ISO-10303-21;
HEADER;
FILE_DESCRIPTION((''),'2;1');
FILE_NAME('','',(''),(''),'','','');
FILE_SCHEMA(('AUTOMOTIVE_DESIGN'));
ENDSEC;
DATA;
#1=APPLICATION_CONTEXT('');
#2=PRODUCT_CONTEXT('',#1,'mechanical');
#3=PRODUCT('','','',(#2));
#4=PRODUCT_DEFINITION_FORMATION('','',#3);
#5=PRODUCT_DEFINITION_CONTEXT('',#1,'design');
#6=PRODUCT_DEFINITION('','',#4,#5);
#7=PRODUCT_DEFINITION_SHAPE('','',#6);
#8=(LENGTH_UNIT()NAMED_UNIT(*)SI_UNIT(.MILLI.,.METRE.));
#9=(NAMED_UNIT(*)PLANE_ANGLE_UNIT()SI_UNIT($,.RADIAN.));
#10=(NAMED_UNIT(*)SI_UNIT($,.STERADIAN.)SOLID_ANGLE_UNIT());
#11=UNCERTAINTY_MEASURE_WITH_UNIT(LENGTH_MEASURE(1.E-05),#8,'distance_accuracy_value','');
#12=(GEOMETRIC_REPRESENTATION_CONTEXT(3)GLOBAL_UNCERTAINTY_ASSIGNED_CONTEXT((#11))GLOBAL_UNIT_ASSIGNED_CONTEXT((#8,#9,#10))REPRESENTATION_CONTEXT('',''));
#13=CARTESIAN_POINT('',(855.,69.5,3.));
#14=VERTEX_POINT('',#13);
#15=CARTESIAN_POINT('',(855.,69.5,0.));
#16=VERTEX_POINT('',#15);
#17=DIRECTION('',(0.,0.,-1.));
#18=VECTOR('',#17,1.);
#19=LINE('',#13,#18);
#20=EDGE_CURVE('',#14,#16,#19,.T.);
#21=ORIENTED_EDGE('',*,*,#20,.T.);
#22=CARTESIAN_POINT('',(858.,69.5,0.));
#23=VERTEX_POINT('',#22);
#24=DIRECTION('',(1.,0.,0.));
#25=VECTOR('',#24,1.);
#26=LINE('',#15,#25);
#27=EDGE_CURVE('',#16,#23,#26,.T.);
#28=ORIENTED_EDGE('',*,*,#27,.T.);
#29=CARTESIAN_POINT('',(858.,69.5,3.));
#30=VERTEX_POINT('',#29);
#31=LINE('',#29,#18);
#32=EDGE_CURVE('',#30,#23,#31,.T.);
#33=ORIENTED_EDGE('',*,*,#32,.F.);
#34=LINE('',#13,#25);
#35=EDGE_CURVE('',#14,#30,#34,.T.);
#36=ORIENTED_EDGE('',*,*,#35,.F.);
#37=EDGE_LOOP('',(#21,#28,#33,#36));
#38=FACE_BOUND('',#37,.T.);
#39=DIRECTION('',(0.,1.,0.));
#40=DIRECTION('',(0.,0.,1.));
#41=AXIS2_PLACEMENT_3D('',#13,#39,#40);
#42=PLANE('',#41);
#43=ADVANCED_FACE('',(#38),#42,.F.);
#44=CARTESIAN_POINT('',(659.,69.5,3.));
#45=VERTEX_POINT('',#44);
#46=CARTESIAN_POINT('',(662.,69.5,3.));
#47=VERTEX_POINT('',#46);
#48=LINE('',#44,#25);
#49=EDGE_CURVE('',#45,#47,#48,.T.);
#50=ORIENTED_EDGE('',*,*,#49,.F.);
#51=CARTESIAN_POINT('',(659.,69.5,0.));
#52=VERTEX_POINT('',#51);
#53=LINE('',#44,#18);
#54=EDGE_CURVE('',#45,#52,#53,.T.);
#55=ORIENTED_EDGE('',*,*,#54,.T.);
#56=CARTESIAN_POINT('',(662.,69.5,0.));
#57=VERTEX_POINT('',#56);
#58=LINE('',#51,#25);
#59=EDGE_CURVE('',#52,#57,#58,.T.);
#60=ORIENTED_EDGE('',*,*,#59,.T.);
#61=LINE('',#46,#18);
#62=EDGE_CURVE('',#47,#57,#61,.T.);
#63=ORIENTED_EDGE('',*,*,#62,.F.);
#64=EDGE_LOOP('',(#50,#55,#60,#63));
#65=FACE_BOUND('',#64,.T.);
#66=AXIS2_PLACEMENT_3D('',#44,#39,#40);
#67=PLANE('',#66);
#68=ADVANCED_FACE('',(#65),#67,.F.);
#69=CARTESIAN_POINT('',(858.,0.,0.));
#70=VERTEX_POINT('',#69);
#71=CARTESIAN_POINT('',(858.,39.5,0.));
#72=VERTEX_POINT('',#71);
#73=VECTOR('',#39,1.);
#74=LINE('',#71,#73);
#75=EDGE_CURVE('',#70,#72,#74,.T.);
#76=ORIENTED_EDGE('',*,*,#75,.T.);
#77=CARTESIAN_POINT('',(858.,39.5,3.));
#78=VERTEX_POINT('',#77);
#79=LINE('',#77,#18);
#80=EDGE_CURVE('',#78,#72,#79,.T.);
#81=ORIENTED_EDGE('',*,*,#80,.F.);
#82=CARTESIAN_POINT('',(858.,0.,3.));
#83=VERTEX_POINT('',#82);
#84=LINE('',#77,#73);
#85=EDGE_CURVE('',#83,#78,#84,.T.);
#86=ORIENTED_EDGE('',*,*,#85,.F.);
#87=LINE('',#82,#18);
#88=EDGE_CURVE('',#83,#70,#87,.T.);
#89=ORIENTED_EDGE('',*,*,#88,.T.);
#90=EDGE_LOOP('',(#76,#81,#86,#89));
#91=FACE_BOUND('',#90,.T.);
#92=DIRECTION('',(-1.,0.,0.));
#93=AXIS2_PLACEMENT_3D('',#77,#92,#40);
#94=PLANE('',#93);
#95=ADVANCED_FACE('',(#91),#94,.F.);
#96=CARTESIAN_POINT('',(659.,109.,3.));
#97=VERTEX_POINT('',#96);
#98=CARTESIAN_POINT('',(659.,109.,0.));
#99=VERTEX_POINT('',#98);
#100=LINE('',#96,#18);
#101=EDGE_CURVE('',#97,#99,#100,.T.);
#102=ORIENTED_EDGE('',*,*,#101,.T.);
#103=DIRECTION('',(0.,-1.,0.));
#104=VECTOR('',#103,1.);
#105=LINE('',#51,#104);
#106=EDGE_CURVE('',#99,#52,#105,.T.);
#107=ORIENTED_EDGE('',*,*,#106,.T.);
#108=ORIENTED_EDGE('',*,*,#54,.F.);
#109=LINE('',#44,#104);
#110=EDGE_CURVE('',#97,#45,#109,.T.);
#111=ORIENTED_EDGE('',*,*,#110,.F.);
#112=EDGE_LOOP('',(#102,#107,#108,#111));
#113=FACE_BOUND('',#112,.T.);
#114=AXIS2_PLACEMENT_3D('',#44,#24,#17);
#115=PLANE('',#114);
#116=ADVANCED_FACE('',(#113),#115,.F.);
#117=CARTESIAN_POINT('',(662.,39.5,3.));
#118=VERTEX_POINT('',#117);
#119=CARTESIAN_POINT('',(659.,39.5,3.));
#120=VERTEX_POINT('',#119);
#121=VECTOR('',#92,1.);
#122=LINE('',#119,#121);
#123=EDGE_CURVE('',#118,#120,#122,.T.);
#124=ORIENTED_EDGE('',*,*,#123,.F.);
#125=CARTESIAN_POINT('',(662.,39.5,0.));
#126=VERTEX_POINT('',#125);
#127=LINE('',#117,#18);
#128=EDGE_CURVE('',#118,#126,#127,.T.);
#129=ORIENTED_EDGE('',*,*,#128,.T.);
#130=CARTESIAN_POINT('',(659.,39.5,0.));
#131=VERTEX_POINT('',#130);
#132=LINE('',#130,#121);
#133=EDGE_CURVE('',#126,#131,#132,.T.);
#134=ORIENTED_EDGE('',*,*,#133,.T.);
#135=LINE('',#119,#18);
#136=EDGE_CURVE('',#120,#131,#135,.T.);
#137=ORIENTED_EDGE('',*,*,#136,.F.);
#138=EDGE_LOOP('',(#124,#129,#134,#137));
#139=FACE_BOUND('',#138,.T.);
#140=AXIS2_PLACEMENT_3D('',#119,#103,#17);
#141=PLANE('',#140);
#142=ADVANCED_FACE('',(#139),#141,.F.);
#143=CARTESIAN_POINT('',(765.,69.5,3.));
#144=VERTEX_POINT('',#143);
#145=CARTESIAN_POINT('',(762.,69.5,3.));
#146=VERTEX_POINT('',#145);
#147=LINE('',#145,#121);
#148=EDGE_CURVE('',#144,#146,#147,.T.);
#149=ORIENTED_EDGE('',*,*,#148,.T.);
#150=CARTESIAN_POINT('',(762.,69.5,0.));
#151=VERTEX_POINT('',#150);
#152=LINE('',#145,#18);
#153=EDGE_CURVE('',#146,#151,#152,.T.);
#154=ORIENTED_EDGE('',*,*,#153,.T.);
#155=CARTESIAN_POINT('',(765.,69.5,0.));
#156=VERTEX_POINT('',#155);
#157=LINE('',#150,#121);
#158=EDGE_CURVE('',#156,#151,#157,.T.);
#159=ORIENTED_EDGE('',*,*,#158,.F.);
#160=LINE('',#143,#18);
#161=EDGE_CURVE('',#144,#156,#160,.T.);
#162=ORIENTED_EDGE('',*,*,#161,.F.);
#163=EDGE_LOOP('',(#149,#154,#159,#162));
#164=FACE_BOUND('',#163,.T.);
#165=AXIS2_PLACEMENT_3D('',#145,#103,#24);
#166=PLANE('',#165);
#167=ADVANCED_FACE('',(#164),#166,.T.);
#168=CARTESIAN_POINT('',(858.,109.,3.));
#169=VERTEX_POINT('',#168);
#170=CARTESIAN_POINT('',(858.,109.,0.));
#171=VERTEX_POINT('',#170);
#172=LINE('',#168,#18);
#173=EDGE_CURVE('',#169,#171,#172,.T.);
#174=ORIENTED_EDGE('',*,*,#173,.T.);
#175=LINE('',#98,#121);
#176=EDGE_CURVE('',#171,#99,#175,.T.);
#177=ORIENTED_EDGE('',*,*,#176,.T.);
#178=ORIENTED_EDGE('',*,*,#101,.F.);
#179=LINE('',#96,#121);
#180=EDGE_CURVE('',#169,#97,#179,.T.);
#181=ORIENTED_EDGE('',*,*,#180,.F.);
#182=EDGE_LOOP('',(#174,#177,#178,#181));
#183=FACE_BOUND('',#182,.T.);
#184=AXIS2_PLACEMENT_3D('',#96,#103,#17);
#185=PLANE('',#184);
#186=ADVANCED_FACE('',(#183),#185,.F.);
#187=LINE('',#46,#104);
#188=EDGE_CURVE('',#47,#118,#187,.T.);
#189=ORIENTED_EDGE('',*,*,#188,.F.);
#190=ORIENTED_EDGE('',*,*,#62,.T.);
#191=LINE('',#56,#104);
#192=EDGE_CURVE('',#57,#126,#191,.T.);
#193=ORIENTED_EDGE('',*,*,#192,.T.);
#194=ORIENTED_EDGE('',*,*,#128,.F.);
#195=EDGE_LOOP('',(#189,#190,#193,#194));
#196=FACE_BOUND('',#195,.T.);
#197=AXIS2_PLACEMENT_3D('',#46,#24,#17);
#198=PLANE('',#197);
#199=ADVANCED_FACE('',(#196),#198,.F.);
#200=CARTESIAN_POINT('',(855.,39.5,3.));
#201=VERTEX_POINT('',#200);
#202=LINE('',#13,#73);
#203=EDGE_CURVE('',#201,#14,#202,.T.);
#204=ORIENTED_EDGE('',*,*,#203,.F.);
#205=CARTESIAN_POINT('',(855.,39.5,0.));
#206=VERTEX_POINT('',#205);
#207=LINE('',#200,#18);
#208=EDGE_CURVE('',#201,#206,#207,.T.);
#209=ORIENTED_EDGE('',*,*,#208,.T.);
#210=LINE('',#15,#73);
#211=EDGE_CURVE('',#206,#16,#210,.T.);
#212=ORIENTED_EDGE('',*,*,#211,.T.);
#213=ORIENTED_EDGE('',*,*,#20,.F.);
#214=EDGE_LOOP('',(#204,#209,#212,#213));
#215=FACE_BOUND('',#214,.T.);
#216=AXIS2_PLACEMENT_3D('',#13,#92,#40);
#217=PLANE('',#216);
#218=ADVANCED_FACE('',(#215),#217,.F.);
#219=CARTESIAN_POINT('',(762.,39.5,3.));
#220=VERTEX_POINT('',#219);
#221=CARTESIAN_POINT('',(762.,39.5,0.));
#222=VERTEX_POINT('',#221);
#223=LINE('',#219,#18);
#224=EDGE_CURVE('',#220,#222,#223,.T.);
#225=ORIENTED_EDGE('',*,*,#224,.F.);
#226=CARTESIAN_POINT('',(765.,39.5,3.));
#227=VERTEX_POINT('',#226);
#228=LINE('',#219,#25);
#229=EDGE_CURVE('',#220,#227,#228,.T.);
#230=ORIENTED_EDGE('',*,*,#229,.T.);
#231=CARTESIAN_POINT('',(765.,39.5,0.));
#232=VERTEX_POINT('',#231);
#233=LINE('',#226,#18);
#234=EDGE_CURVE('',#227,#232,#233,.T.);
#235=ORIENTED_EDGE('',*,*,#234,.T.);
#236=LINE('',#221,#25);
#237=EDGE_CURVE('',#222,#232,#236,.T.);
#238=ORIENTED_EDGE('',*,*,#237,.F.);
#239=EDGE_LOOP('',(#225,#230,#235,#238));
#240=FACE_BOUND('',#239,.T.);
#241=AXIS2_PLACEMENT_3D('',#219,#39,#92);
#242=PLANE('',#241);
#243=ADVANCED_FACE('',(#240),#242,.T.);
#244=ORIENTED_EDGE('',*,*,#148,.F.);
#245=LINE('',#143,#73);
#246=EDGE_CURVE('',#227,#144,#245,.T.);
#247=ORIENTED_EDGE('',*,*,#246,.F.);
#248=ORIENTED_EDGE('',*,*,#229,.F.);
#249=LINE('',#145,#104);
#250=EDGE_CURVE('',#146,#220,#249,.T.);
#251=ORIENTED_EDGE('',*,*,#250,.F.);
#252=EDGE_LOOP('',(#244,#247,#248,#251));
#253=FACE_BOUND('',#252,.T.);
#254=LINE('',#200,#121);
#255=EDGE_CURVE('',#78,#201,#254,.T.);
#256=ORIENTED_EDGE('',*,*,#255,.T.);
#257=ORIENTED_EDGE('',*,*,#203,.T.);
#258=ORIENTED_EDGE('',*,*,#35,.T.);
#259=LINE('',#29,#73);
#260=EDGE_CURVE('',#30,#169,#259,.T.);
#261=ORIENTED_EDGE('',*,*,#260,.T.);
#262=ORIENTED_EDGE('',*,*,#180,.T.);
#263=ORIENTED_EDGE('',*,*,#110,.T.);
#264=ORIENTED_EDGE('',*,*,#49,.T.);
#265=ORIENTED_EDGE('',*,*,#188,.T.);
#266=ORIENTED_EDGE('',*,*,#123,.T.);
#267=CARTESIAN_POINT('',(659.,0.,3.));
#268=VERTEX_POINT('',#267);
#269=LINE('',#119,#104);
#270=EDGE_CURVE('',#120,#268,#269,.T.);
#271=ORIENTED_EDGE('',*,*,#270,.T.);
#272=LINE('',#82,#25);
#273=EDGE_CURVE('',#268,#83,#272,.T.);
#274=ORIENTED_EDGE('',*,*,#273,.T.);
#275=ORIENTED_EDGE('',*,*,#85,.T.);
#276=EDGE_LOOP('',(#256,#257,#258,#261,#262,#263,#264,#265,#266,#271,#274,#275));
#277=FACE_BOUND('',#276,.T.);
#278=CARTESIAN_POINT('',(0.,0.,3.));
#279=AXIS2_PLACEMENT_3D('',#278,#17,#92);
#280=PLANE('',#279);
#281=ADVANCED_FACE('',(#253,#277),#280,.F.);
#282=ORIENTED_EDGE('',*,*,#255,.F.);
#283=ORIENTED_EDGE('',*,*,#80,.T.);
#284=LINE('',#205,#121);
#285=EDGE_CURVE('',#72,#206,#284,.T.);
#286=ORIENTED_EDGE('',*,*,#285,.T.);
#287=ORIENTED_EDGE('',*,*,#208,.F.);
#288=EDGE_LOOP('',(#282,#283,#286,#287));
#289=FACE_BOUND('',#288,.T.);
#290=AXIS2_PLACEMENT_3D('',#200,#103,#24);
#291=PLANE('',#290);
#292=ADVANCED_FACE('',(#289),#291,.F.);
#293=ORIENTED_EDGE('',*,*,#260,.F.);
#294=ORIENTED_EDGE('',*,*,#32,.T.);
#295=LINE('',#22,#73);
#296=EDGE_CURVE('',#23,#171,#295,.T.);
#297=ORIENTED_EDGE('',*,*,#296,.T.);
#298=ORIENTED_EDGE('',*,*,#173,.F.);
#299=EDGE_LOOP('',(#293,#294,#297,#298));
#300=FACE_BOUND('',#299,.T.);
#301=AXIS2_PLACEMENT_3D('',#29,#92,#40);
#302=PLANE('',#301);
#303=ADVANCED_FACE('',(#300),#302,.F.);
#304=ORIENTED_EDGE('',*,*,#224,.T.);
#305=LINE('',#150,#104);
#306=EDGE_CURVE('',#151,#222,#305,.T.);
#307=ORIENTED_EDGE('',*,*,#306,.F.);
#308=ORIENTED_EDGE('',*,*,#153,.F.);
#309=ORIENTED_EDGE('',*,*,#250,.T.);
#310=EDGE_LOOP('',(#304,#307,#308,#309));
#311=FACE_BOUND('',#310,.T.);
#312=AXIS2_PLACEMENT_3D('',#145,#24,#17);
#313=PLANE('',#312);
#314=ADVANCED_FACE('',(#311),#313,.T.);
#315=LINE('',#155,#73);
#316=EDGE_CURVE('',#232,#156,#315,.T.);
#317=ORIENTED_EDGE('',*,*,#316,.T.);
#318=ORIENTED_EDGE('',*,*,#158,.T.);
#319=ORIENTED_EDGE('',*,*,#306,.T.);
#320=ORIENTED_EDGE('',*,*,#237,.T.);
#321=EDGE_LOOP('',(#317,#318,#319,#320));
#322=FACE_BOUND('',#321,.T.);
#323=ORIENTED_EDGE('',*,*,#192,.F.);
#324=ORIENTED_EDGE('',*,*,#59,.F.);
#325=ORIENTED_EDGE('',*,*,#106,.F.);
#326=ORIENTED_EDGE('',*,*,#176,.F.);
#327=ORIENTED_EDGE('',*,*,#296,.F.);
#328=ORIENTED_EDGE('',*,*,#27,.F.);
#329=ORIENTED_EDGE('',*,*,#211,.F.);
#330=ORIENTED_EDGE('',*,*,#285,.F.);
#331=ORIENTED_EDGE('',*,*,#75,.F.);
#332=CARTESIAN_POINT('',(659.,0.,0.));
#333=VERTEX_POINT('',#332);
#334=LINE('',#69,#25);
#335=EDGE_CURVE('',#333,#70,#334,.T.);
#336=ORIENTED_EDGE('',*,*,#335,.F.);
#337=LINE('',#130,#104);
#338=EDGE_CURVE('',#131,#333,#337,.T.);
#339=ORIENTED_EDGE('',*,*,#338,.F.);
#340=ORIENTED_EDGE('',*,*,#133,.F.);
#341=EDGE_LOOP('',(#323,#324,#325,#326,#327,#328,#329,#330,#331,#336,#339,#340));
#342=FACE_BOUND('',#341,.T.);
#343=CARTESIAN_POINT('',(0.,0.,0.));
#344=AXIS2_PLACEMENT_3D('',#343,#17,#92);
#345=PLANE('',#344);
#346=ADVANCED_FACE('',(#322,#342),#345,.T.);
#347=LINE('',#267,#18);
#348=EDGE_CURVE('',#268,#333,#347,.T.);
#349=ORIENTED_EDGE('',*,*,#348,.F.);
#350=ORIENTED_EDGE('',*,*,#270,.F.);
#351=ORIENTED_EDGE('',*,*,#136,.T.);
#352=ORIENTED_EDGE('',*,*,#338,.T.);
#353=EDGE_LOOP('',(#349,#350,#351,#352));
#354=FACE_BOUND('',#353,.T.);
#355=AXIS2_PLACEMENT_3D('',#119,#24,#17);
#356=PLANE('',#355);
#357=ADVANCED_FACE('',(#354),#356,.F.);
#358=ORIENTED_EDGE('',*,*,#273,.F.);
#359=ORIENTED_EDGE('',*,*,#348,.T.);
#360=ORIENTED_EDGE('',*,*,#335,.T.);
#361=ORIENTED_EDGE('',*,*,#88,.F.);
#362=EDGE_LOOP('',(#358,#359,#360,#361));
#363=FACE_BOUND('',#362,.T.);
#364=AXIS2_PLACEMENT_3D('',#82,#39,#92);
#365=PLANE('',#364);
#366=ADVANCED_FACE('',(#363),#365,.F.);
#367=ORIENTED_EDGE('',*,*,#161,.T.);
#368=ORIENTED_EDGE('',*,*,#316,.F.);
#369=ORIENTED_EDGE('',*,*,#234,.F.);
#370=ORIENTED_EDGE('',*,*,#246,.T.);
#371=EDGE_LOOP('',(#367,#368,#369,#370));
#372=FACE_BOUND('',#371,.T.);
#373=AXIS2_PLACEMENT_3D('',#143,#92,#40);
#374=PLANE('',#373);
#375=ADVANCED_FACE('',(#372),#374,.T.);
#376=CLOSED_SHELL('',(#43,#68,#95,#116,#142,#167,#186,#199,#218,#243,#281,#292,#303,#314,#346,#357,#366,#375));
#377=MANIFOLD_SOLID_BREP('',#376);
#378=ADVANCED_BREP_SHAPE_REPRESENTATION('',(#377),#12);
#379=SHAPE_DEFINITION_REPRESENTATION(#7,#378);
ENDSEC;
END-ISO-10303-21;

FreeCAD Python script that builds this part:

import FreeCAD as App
import Part
import Sketcher


def add_polygon(sketch, points):
    """Adds a closed chain of lines whose ends are joined by coincident constraints."""
    first, n = sketch.GeometryCount, len(points)
    for a, b in zip(points, points[1:] + points[:1]):
        sketch.addGeometry(Part.LineSegment(App.Vector(*a, 0), App.Vector(*b, 0)), False)
    for i in range(n):
        sketch.addConstraint(Sketcher.Constraint("Coincident", first + i, 2, first + (i + 1) % n, 1))

doc = App.newDocument("Part")
body = doc.addObject("PartDesign::Body", "Body")

sketch1 = body.newObject("Sketcher::SketchObject", "Sketch")
sketch1.AttachmentSupport = (doc.getObject("XY_Plane"), [""])
sketch1.MapMode = "FlatFace"
add_polygon(sketch1, [(858, 109), (659, 109), (659, 69.5), (662, 69.5), (662, 39.5), (659, 39.5), (659, 0), (858, 0), (858, 39.5), (855, 39.5), (855, 69.5), (858, 69.5)])
add_polygon(sketch1, [(765, 39.5), (762, 39.5), (762, 69.5), (765, 69.5)])
sketch1.addConstraint([
    Sketcher.Constraint("Horizontal", 0),
    Sketcher.Constraint("Vertical", 1),
    Sketcher.Constraint("Horizontal", 2),
    Sketcher.Constraint("Vertical", 3),
    Sketcher.Constraint("Horizontal", 4),
    Sketcher.Constraint("Vertical", 5),
    Sketcher.Constraint("Horizontal", 6),
    Sketcher.Constraint("Vertical", 7),
    Sketcher.Constraint("Horizontal", 8),
    Sketcher.Constraint("Vertical", 9),
    Sketcher.Constraint("Horizontal", 10),
    Sketcher.Constraint("Vertical", 11),
    Sketcher.Constraint("Horizontal", 12),
    Sketcher.Constraint("Vertical", 13),
    Sketcher.Constraint("Horizontal", 14),
    Sketcher.Constraint("Vertical", 15),
    Sketcher.Constraint("PointOnObject", 5, 2, -1),
    Sketcher.Constraint("Horizontal", 4, 2, 7, 2),
    Sketcher.Constraint("Horizontal", 2, 2, 9, 2),
    Sketcher.Constraint("Horizontal", 8, 2, 12, 2),
    Sketcher.Constraint("Horizontal", 10, 2, 13, 2),
    Sketcher.Constraint("Vertical", 1, 2, 4, 2),
    Sketcher.Constraint("Vertical", 7, 2, 10, 2),
    Sketcher.Constraint("Equal", 4, 8),
    Sketcher.Constraint("Equal", 10, 12),
    Sketcher.Constraint("Equal", 1, 5),
    Sketcher.Constraint("DistanceX", 0, 2, 0, 1, 199.0),
    Sketcher.Constraint("DistanceX", 2, 1, 2, 2, 3.0),
    Sketcher.Constraint("DistanceY", 3, 2, 3, 1, 30.0),
    Sketcher.Constraint("DistanceY", 1, 2, 1, 1, 39.5),
    Sketcher.Constraint("DistanceX", -1, 1, 0, 2, 659.0),
    Sketcher.Constraint("DistanceX", -1, 1, 12, 2, 762.0),
])
pad1 = body.newObject("PartDesign::Pad", "Pad")
pad1.Profile = sketch1
pad1.Length = 3

doc.recompute()
